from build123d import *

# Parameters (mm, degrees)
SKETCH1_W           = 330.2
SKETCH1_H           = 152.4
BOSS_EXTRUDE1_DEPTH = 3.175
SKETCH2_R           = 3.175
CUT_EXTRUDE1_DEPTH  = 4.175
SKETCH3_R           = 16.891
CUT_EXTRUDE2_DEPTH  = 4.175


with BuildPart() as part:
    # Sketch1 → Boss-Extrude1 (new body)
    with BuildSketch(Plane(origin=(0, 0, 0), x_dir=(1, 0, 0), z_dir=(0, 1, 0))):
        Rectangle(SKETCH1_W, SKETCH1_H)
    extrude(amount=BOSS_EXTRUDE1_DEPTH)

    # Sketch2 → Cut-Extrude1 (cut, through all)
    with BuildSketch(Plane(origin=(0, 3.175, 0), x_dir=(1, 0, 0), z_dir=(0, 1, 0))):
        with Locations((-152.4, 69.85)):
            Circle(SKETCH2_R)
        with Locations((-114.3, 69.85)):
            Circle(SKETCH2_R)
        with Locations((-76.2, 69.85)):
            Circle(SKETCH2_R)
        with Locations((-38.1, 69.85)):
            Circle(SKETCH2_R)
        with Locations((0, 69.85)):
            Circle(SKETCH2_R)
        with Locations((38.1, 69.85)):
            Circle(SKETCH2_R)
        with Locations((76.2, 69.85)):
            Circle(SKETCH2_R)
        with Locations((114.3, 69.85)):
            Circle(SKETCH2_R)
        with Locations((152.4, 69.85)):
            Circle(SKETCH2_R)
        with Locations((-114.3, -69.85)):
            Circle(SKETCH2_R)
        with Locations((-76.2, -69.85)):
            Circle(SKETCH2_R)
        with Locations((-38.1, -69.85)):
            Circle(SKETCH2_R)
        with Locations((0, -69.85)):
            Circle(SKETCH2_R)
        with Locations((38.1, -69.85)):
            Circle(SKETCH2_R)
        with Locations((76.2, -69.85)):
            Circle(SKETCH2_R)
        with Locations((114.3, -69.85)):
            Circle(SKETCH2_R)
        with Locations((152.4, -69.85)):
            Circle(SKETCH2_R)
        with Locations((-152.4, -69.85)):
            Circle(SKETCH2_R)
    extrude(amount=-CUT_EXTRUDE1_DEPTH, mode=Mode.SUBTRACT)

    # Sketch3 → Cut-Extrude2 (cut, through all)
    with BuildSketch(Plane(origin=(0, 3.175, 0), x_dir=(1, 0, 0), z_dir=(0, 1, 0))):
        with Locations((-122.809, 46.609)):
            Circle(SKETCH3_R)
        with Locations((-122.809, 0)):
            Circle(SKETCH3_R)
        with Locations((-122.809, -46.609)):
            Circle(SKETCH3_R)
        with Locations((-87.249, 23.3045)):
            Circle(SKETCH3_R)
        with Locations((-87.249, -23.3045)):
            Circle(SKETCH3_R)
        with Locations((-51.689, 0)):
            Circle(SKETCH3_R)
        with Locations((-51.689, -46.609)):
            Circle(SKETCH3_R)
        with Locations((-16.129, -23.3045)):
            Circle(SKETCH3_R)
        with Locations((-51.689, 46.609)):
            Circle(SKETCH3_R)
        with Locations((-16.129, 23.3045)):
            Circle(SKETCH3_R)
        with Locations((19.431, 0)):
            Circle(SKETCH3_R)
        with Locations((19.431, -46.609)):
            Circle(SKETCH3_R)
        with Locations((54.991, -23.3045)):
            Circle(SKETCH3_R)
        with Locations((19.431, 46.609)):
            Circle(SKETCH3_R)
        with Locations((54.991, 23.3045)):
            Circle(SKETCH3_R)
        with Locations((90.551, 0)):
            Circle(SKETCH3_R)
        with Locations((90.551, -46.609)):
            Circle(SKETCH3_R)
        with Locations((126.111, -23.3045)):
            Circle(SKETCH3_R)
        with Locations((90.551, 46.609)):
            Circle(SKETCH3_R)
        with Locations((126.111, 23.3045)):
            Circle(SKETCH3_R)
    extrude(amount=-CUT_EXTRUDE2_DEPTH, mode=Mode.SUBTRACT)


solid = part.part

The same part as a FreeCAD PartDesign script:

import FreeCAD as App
import Part
import Sketcher
from FreeCAD import Vector
Q = App.Units.Quantity

doc = App.newDocument("Part")
body = doc.addObject("PartDesign::Body", "Body")

# Sketch on XZ plane
sketch1 = body.newObject("Sketcher::SketchObject", "Sketch")
sketch1.AttachmentSupport = (doc.getObject("XZ_Plane"), [""])
sketch1.MapMode = "FlatFace"
sketch1.addGeometry([
    Part.LineSegment(Vector(-165.1, -76.2, 0), Vector(-165.1, 76.2, 0)),
    Part.LineSegment(Vector(-165.1, 76.2, 0), Vector(165.1, 76.2, 0)),
    Part.LineSegment(Vector(165.1, 76.2, 0), Vector(165.1, -76.2, 0)),
    Part.LineSegment(Vector(165.1, -76.2, 0), Vector(-165.1, -76.2, 0)),
], False)
sketch1.addConstraint([
    Sketcher.Constraint("Coincident", 0, 2, 1, 1),
    Sketcher.Constraint("Coincident", 1, 2, 2, 1),
    Sketcher.Constraint("Coincident", 2, 2, 3, 1),
    Sketcher.Constraint("Coincident", 3, 2, 0, 1),
    Sketcher.Constraint("Vertical", 0),
    Sketcher.Constraint("Horizontal", 1),
    Sketcher.Constraint("Vertical", 2),
    Sketcher.Constraint("Horizontal", 3),
    Sketcher.Constraint("Symmetric", 0, 2, 2, 2, -1, 1),
    Sketcher.Constraint("DistanceX", 1, 1, 1, 2, Q("13 in")),
    Sketcher.Constraint("DistanceY", 0, 1, 0, 2, Q("6 in")),
])
pad1 = body.newObject("PartDesign::Pad", "Pad")
pad1.Profile = sketch1
pad1.Length = Q("0.125 in")
pad1.Reversed = True

# Sketch on XZ plane
sketch2 = body.newObject("Sketcher::SketchObject", "Sketch001")
sketch2.AttachmentSupport = (doc.getObject("XZ_Plane"), [""])
sketch2.MapMode = "FlatFace"
sketch2.AttachmentOffset = App.Placement(Vector(0, 0, -0.125 * 25.4), App.Rotation())
sketch2.addGeometry([
    Part.Circle(Vector(-152.4, -69.85, 0), Vector(0, 0, 1), 3.175),  # 0
    Part.Circle(Vector(-114.3, -69.85, 0), Vector(0, 0, 1), 3.175),  # 1
    Part.Circle(Vector(-76.2, -69.85, 0), Vector(0, 0, 1), 3.175),  # 2
    Part.Circle(Vector(-38.1, -69.85, 0), Vector(0, 0, 1), 3.175),  # 3
    Part.Circle(Vector(0, -69.85, 0), Vector(0, 0, 1), 3.175),  # 4
    Part.Circle(Vector(38.1, -69.85, 0), Vector(0, 0, 1), 3.175),  # 5
    Part.Circle(Vector(76.2, -69.85, 0), Vector(0, 0, 1), 3.175),  # 6
    Part.Circle(Vector(114.3, -69.85, 0), Vector(0, 0, 1), 3.175),  # 7
    Part.Circle(Vector(152.4, -69.85, 0), Vector(0, 0, 1), 3.175),  # 8
    Part.Circle(Vector(-114.3, 69.85, 0), Vector(0, 0, 1), 3.175),  # 9
    Part.Circle(Vector(-76.2, 69.85, 0), Vector(0, 0, 1), 3.175),  # 10
    Part.Circle(Vector(-38.1, 69.85, 0), Vector(0, 0, 1), 3.175),  # 11
    Part.Circle(Vector(0, 69.85, 0), Vector(0, 0, 1), 3.175),  # 12
    Part.Circle(Vector(38.1, 69.85, 0), Vector(0, 0, 1), 3.175),  # 13
    Part.Circle(Vector(76.2, 69.85, 0), Vector(0, 0, 1), 3.175),  # 14
    Part.Circle(Vector(114.3, 69.85, 0), Vector(0, 0, 1), 3.175),  # 15
    Part.Circle(Vector(152.4, 69.85, 0), Vector(0, 0, 1), 3.175),  # 16
    Part.Circle(Vector(-152.4, 69.85, 0), Vector(0, 0, 1), 3.175),  # 17
], False)
sketch2.addConstraint([
    Sketcher.Constraint("Equal", 0, 1),
    Sketcher.Constraint("Equal", 1, 2),
    Sketcher.Constraint("Equal", 2, 3),
    Sketcher.Constraint("Equal", 3, 4),
    Sketcher.Constraint("Equal", 4, 5),
    Sketcher.Constraint("Equal", 5, 6),
    Sketcher.Constraint("Equal", 6, 7),
    Sketcher.Constraint("Equal", 7, 8),
    Sketcher.Constraint("Equal", 8, 9),
    Sketcher.Constraint("Equal", 9, 10),
    Sketcher.Constraint("Equal", 10, 11),
    Sketcher.Constraint("Equal", 11, 12),
    Sketcher.Constraint("Equal", 12, 13),
    Sketcher.Constraint("Equal", 13, 14),
    Sketcher.Constraint("Equal", 14, 15),
    Sketcher.Constraint("Equal", 15, 16),
    Sketcher.Constraint("Equal", 16, 17),
    Sketcher.Constraint("Symmetric", 7, 3, 9, 3, -1, 1),
    Sketcher.Constraint("Symmetric", 6, 3, 10, 3, -1, 1),
    Sketcher.Constraint("Symmetric", 5, 3, 11, 3, -1, 1),
    Sketcher.Constraint("Symmetric", 4, 3, 12, 3, -1, 1),
    Sketcher.Constraint("Symmetric", 3, 3, 13, 3, -1, 1),
    Sketcher.Constraint("Symmetric", 2, 3, 14, 3, -1, 1),
    Sketcher.Constraint("Symmetric", 1, 3, 15, 3, -1, 1),
    Sketcher.Constraint("Symmetric", 0, 3, 16, 3, -1, 1),
    Sketcher.Constraint("Symmetric", 8, 3, 17, 3, -1, 1),
    Sketcher.Constraint("Symmetric", 3, 3, 5, 3, -2),
    Sketcher.Constraint("Symmetric", 2, 3, 6, 3, -2),
    Sketcher.Constraint("Symmetric", 1, 3, 7, 3, -2),
    Sketcher.Constraint("Symmetric", 0, 3, 8, 3, -2),
    Sketcher.Constraint("PointOnObject", 4, 3, -2),
    Sketcher.Constraint("Horizontal", 0, 3, 1, 3),
    Sketcher.Constraint("Horizontal", 1, 3, 2, 3),
    Sketcher.Constraint("Horizontal", 2, 3, 3, 3),
    Sketcher.Constraint("Horizontal", 3, 3, 4, 3),
    Sketcher.Constraint("Diameter", 0, Q("0.25 in")),
    Sketcher.Constraint("DistanceX", 0, 3, -1, 1, Q("6 in")),
    Sketcher.Constraint("DistanceX", 2, 3, -1, 1, Q("3 in")),
    Sketcher.Constraint("DistanceX", 1, 3, 3, 3, Q("3 in")),
    Sketcher.Constraint("DistanceX", 3, 3, 5, 3, Q("3 in")),
    Sketcher.Constraint("DistanceY", 1, 3, 9, 3, Q("5.5 in")),
])
pocket1 = body.newObject("PartDesign::Pocket", "Pocket")
pocket1.Profile = sketch2
pocket1.Type = "ThroughAll"
pocket1.Reversed = True

# Sketch on XZ plane
sketch3 = body.newObject("Sketcher::SketchObject", "Sketch002")
sketch3.AttachmentSupport = (doc.getObject("XZ_Plane"), [""])
sketch3.MapMode = "FlatFace"
sketch3.AttachmentOffset = App.Placement(Vector(0, 0, -0.125 * 25.4), App.Rotation())
sketch3.addGeometry([
    Part.Circle(Vector(-122.809, -46.609, 0), Vector(0, 0, 1), 16.891),  # 0
    Part.Circle(Vector(-122.809, 0, 0), Vector(0, 0, 1), 16.891),  # 1
    Part.Circle(Vector(-122.809, 46.609, 0), Vector(0, 0, 1), 16.891),  # 2
    Part.Circle(Vector(-87.249, -23.3045, 0), Vector(0, 0, 1), 16.891),  # 3
    Part.Circle(Vector(-87.249, 23.3045, 0), Vector(0, 0, 1), 16.891),  # 4
    Part.Circle(Vector(-51.689, 0, 0), Vector(0, 0, 1), 16.891),  # 5
    Part.Circle(Vector(-51.689, 46.609, 0), Vector(0, 0, 1), 16.891),  # 6
    Part.Circle(Vector(-16.129, 23.3045, 0), Vector(0, 0, 1), 16.891),  # 7
    Part.Circle(Vector(-51.689, -46.609, 0), Vector(0, 0, 1), 16.891),  # 8
    Part.Circle(Vector(-16.129, -23.3045, 0), Vector(0, 0, 1), 16.891),  # 9
    Part.Circle(Vector(19.431, 0, 0), Vector(0, 0, 1), 16.891),  # 10
    Part.Circle(Vector(19.431, 46.609, 0), Vector(0, 0, 1), 16.891),  # 11
    Part.Circle(Vector(54.991, 23.3045, 0), Vector(0, 0, 1), 16.891),  # 12
    Part.Circle(Vector(19.431, -46.609, 0), Vector(0, 0, 1), 16.891),  # 13
    Part.Circle(Vector(54.991, -23.3045, 0), Vector(0, 0, 1), 16.891),  # 14
    Part.Circle(Vector(90.551, 0, 0), Vector(0, 0, 1), 16.891),  # 15
    Part.Circle(Vector(90.551, 46.609, 0), Vector(0, 0, 1), 16.891),  # 16
    Part.Circle(Vector(126.111, 23.3045, 0), Vector(0, 0, 1), 16.891),  # 17
    Part.Circle(Vector(90.551, -46.609, 0), Vector(0, 0, 1), 16.891),  # 18
    Part.Circle(Vector(126.111, -23.3045, 0), Vector(0, 0, 1), 16.891),  # 19
], False)
sketch3.addConstraint([
    Sketcher.Constraint("Equal", 0, 1),
    Sketcher.Constraint("Equal", 1, 2),
    Sketcher.Constraint("Equal", 2, 3),
    Sketcher.Constraint("Equal", 3, 4),
    Sketcher.Constraint("Equal", 4, 5),
    Sketcher.Constraint("Equal", 5, 6),
    Sketcher.Constraint("Equal", 6, 7),
    Sketcher.Constraint("Equal", 7, 8),
    Sketcher.Constraint("Equal", 8, 9),
    Sketcher.Constraint("Equal", 9, 10),
    Sketcher.Constraint("Equal", 10, 11),
    Sketcher.Constraint("Equal", 11, 12),
    Sketcher.Constraint("Equal", 12, 13),
    Sketcher.Constraint("Equal", 13, 14),
    Sketcher.Constraint("Equal", 14, 15),
    Sketcher.Constraint("Equal", 15, 16),
    Sketcher.Constraint("Equal", 16, 17),
    Sketcher.Constraint("Equal", 17, 18),
    Sketcher.Constraint("Equal", 18, 19),
    Sketcher.Constraint("Symmetric", 0, 3, 2, 3, -1),
    Sketcher.Constraint("Symmetric", 3, 3, 4, 3, -1),
    Sketcher.Constraint("Symmetric", 6, 3, 8, 3, -1),
    Sketcher.Constraint("Symmetric", 7, 3, 9, 3, -1),
    Sketcher.Constraint("Symmetric", 11, 3, 13, 3, -1),
    Sketcher.Constraint("Symmetric", 12, 3, 14, 3, -1),
    Sketcher.Constraint("Symmetric", 16, 3, 18, 3, -1),
    Sketcher.Constraint("Symmetric", 17, 3, 19, 3, -1),
    Sketcher.Constraint("PointOnObject", 1, 3, -1),
    Sketcher.Constraint("PointOnObject", 5, 3, -1),
    Sketcher.Constraint("PointOnObject", 10, 3, -1),
    Sketcher.Constraint("PointOnObject", 15, 3, -1),
    Sketcher.Constraint("Horizontal", 2, 3, 6, 3),
    Sketcher.Constraint("Horizontal", 4, 3, 7, 3),
    Sketcher.Constraint("Horizontal", 6, 3, 11, 3),
    Sketcher.Constraint("Horizontal", 7, 3, 12, 3),
    Sketcher.Constraint("Horizontal", 11, 3, 16, 3),
    Sketcher.Constraint("Horizontal", 12, 3, 17, 3),
    Sketcher.Constraint("Vertical", 0, 3, 1, 3),
    Sketcher.Constraint("Vertical", 5, 3, 6, 3),
    Sketcher.Constraint("Vertical", 10, 3, 11, 3),
    Sketcher.Constraint("Vertical", 15, 3, 16, 3),
    Sketcher.Constraint("Diameter", 0, Q("1.33 in")),
    Sketcher.Constraint("DistanceX", 0, 3, 3, 3, Q("1.4 in")),
    Sketcher.Constraint("DistanceX", 3, 3, 5, 3, Q("1.4 in")),
    Sketcher.Constraint("DistanceX", 5, 3, 7, 3, Q("1.4 in")),
    Sketcher.Constraint("DistanceX", 7, 3, 10, 3, Q("1.4 in")),
    Sketcher.Constraint("DistanceX", 10, 3, 12, 3, Q("1.4 in")),
    Sketcher.Constraint("DistanceX", 12, 3, 15, 3, Q("1.4 in")),
    Sketcher.Constraint("DistanceX", 15, 3, 17, 3, Q("1.4 in")),
    Sketcher.Constraint("DistanceY", 0, 3, 2, 3, Q("3.67 in")),
    Sketcher.Constraint("DistanceX", 0, 3, -1, 1, Q("4.835 in")),
    Sketcher.Constraint("DistanceY", 3, 3, 4, 3, Q("1.835 in")),
])
pocket2 = body.newObject("PartDesign::Pocket", "Pocket001")
pocket2.Profile = sketch3
pocket2.Type = "ThroughAll"
pocket2.Reversed = True

doc.recompute()
